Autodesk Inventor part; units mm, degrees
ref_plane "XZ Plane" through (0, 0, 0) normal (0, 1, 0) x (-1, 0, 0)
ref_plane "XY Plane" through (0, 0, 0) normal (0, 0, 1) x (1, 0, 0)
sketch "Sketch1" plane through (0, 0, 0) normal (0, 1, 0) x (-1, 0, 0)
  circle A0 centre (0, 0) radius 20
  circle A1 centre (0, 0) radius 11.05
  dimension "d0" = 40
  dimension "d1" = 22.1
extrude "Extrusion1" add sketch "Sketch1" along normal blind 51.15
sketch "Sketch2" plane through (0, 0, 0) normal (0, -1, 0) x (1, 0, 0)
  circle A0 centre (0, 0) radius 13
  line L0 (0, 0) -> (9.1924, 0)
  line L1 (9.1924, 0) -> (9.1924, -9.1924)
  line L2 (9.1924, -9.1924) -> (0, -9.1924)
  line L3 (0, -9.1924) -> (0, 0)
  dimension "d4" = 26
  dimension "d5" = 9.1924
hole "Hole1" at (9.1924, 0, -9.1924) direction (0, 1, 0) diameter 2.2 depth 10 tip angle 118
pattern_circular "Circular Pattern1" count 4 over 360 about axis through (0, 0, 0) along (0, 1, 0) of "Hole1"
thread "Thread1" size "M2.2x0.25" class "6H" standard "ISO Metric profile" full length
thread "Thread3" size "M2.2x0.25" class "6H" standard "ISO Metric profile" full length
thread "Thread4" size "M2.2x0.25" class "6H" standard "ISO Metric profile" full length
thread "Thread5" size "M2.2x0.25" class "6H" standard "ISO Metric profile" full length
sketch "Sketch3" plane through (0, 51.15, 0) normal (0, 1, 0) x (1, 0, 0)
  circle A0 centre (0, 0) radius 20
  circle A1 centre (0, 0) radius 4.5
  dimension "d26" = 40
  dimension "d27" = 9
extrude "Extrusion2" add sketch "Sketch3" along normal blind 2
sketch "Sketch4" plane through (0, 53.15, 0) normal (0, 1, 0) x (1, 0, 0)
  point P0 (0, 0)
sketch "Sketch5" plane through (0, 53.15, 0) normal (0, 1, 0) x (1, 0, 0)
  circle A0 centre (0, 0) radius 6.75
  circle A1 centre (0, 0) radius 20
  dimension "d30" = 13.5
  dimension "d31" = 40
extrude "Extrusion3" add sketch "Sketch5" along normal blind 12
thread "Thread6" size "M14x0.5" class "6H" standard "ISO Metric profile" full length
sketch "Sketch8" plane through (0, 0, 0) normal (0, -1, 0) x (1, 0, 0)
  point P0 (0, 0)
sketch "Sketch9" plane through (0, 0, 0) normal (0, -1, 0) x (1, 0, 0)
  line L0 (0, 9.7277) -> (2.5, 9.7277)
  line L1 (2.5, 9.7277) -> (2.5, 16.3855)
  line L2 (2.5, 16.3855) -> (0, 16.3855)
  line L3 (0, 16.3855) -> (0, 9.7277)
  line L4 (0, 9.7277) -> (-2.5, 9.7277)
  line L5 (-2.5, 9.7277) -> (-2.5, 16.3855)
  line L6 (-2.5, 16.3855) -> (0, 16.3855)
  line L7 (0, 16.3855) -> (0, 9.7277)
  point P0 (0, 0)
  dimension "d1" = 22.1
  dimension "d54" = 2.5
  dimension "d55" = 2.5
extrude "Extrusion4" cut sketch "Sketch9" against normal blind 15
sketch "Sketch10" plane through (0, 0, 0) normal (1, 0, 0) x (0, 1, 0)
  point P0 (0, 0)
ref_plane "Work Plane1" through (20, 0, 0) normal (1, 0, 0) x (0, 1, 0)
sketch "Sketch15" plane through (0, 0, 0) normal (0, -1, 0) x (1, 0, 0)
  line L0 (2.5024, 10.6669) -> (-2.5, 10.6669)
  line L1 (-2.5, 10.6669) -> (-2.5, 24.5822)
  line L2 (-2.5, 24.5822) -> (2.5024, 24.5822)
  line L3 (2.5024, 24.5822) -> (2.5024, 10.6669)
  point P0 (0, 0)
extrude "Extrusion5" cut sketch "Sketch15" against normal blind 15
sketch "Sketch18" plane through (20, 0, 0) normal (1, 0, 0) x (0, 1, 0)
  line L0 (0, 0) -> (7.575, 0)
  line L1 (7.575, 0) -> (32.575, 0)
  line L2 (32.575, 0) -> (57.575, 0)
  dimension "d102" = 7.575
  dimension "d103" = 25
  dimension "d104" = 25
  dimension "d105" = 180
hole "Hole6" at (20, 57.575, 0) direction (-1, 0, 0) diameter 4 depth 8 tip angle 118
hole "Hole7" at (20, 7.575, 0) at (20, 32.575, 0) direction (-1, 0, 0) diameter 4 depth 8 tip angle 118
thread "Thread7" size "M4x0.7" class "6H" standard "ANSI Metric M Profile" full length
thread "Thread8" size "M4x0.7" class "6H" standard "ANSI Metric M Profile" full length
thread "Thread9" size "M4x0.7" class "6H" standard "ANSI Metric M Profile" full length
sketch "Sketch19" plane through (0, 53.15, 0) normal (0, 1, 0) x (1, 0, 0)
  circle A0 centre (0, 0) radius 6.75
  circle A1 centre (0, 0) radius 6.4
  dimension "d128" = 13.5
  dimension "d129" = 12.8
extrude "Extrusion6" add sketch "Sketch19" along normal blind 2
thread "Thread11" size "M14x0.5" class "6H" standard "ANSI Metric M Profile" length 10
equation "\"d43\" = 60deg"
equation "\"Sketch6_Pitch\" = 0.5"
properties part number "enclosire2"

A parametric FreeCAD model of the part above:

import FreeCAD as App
import Part
import Sketcher
Q = App.Units.Quantity


def add_polygon(sketch, points):
    """Adds a closed chain of lines whose ends are joined by coincident constraints."""
    first, n = sketch.GeometryCount, len(points)
    for a, b in zip(points, points[1:] + points[:1]):
        sketch.addGeometry(Part.LineSegment(App.Vector(*a, 0), App.Vector(*b, 0)), False)
    for i in range(n):
        sketch.addConstraint(Sketcher.Constraint("Coincident", first + i, 2, first + (i + 1) % n, 1))

doc = App.newDocument("Part")
body = doc.addObject("PartDesign::Body", "Body")

# Sketch on XZ plane
sketch1 = body.newObject("Sketcher::SketchObject", "Sketch")
sketch1.AttachmentSupport = (doc.getObject("XZ_Plane"), [""])
sketch1.MapMode = "FlatFace"
sketch1.addGeometry([
    Part.Circle(App.Vector(0, 0, 0), App.Vector(0, 0, 1), 20),
    Part.Circle(App.Vector(0, 0, 0), App.Vector(0, 0, 1), 11.05),
], False)
sketch1.addConstraint([
    Sketcher.Constraint("Coincident", 0, 3, -1, 1),
    Sketcher.Constraint("Coincident", 1, 3, -1, 1),
    Sketcher.Constraint("Diameter", 0, Q("40 mm")),
    Sketcher.Constraint("Diameter", 1, Q("22.1 mm")),
])
pad1 = body.newObject("PartDesign::Pad", "Pad")
pad1.Profile = sketch1
pad1.Length = 51.15
pad1.Reversed = True

# Sketch on XZ plane
sketch2 = body.newObject("Sketcher::SketchObject", "Sketch001")
sketch2.AttachmentSupport = (doc.getObject("XZ_Plane"), [""])
sketch2.MapMode = "FlatFace"
sketch2.addGeometry(Part.Circle(App.Vector(9.1924, -9.1924, 0), App.Vector(0, 0, 1), 1.1), False)
sketch2.addConstraint([
    Sketcher.Constraint("Diameter", 0, Q("2.2 mm")),
    Sketcher.Constraint("DistanceX", -1, 1, 0, 3, Q("9.1924 mm")),
    Sketcher.Constraint("DistanceY", 0, 3, -1, 1, Q("9.1924 mm")),
])
doc.recompute()
hole = body.newObject("PartDesign::Hole", "Hole")
hole.Profile = sketch2
hole.ThreadType = "None"
hole.Diameter = 2.2
hole.DepthType = "Dimension"
hole.Depth = 10
hole.DrillPoint = "Angled"
hole.DrillPointAngle = 118
doc.recompute()

polarpattern = body.newObject("PartDesign::PolarPattern", "PolarPattern")
polarpattern.Originals = [hole]
polarpattern.Axis = (doc.getObject("Y_Axis"), [""])
polarpattern.Angle = 360
polarpattern.Occurrences = 4
body.Tip = polarpattern

# Sketch on XZ plane
sketch3 = body.newObject("Sketcher::SketchObject", "Sketch002")
sketch3.AttachmentSupport = (doc.getObject("XZ_Plane"), [""])
sketch3.MapMode = "FlatFace"
sketch3.AttachmentOffset = App.Placement(App.Vector(0, 0, -51.15), App.Rotation())
sketch3.addGeometry([
    Part.Circle(App.Vector(0, 0, 0), App.Vector(0, 0, 1), 20),
    Part.Circle(App.Vector(0, 0, 0), App.Vector(0, 0, 1), 4.5),
], False)
sketch3.addConstraint([
    Sketcher.Constraint("Coincident", 0, 3, -1, 1),
    Sketcher.Constraint("Coincident", 1, 3, -1, 1),
    Sketcher.Constraint("Diameter", 0, Q("40 mm")),
    Sketcher.Constraint("Diameter", 1, Q("9 mm")),
])
pad2 = body.newObject("PartDesign::Pad", "Pad001")
pad2.Profile = sketch3
pad2.Length = 2
pad2.Reversed = True

# Sketch on XZ plane
sketch4 = body.newObject("Sketcher::SketchObject", "Sketch003")
sketch4.AttachmentSupport = (doc.getObject("XZ_Plane"), [""])
sketch4.MapMode = "FlatFace"
sketch4.AttachmentOffset = App.Placement(App.Vector(0, 0, -53.15), App.Rotation())
sketch4.addGeometry([
    Part.Circle(App.Vector(0, 0, 0), App.Vector(0, 0, 1), 20),
    Part.Circle(App.Vector(0, 0, 0), App.Vector(0, 0, 1), 6.75),
], False)
sketch4.addConstraint([
    Sketcher.Constraint("Coincident", 0, 3, -1, 1),
    Sketcher.Constraint("Coincident", 1, 3, -1, 1),
    Sketcher.Constraint("Diameter", 0, Q("40 mm")),
    Sketcher.Constraint("Diameter", 1, Q("13.5 mm")),
])
pad3 = body.newObject("PartDesign::Pad", "Pad002")
pad3.Profile = sketch4
pad3.Length = 12
pad3.Reversed = True

# Sketch on XZ plane
sketch5 = body.newObject("Sketcher::SketchObject", "Sketch004")
sketch5.AttachmentSupport = (doc.getObject("XZ_Plane"), [""])
sketch5.MapMode = "FlatFace"
add_polygon(sketch5, [(2.5, 16.3855), (-2.5, 16.3855), (-2.5, 9.7277), (2.5, 9.7277)])  # lines 0-3
sketch5.addConstraint([
    Sketcher.Constraint("Horizontal", 0),
    Sketcher.Constraint("Vertical", 1),
    Sketcher.Constraint("Horizontal", 2),
    Sketcher.Constraint("Vertical", 3),
    Sketcher.Constraint("DistanceX", 0, 2, -1, 1, Q("2.5 mm")),
    Sketcher.Constraint("DistanceX", -1, 1, 2, 2, Q("2.5 mm")),
    Sketcher.Constraint("DistanceY", 1, 2, 1, 1, Q("6.6578 mm")),
    Sketcher.Constraint("DistanceY", -1, 1, 0, 2, Q("16.3855 mm")),
])
pocket1 = body.newObject("PartDesign::Pocket", "Pocket")
pocket1.Profile = sketch5
pocket1.Length = 15

# Sketch on XZ plane
sketch6 = body.newObject("Sketcher::SketchObject", "Sketch005")
sketch6.AttachmentSupport = (doc.getObject("XZ_Plane"), [""])
sketch6.MapMode = "FlatFace"
add_polygon(sketch6, [(-2.5, 10.6669), (2.5024, 10.6669), (2.5024, 24.5822), (-2.5, 24.5822)])  # lines 0-3
sketch6.addConstraint([
    Sketcher.Constraint("Horizontal", 0),
    Sketcher.Constraint("Vertical", 1),
    Sketcher.Constraint("Horizontal", 2),
    Sketcher.Constraint("Vertical", 3),
    Sketcher.Constraint("DistanceX", 2, 2, -1, 1, Q("2.5 mm")),
    Sketcher.Constraint("DistanceX", 0, 1, 0, 2, Q("5.0024 mm")),
    Sketcher.Constraint("DistanceY", 1, 1, 1, 2, Q("13.9153 mm")),
    Sketcher.Constraint("DistanceY", -1, 1, 0, 2, Q("10.667 mm")),
])
pocket2 = body.newObject("PartDesign::Pocket", "Pocket001")
pocket2.Profile = sketch6
pocket2.Length = 15

# Sketch on YZ plane
sketch7 = body.newObject("Sketcher::SketchObject", "Sketch006")
sketch7.AttachmentSupport = (doc.getObject("YZ_Plane"), [""])
sketch7.MapMode = "FlatFace"
sketch7.AttachmentOffset = App.Placement(App.Vector(0, 0, 20), App.Rotation())
sketch7.addGeometry(Part.Circle(App.Vector(57.575, 0, 0), App.Vector(0, 0, 1), 2), False)
sketch7.addConstraint([
    Sketcher.Constraint("PointOnObject", 0, 3, -1),
    Sketcher.Constraint("Diameter", 0, Q("4 mm")),
    Sketcher.Constraint("DistanceX", -1, 1, 0, 3, Q("57.575 mm")),
])
doc.recompute()
hole2 = body.newObject("PartDesign::Hole", "Hole001")
hole2.Profile = sketch7
hole2.ThreadType = "None"
hole2.Diameter = 4
hole2.DepthType = "Dimension"
hole2.Depth = 8
hole2.DrillPoint = "Angled"
hole2.DrillPointAngle = 118

# Sketch on YZ plane
sketch8 = body.newObject("Sketcher::SketchObject", "Sketch007")
sketch8.AttachmentSupport = (doc.getObject("YZ_Plane"), [""])
sketch8.MapMode = "FlatFace"
sketch8.AttachmentOffset = App.Placement(App.Vector(0, 0, 20), App.Rotation())
sketch8.addGeometry([
    Part.Circle(App.Vector(7.575, 0, 0), App.Vector(0, 0, 1), 2),
    Part.Circle(App.Vector(32.575, 0, 0), App.Vector(0, 0, 1), 2),
], False)
sketch8.addConstraint([
    Sketcher.Constraint("Equal", 0, 1),
    Sketcher.Constraint("PointOnObject", 0, 3, -1),
    Sketcher.Constraint("PointOnObject", 1, 3, -1),
    Sketcher.Constraint("Diameter", 0, Q("4 mm")),
    Sketcher.Constraint("DistanceX", 0, 3, 1, 3, Q("25 mm")),
    Sketcher.Constraint("DistanceX", -1, 1, 0, 3, Q("7.575 mm")),
])
doc.recompute()
hole3 = body.newObject("PartDesign::Hole", "Hole002")
hole3.Profile = sketch8
hole3.ThreadType = "None"
hole3.Diameter = 4
hole3.DepthType = "Dimension"
hole3.Depth = 8
hole3.DrillPoint = "Angled"
hole3.DrillPointAngle = 118

# Sketch on XZ plane
sketch9 = body.newObject("Sketcher::SketchObject", "Sketch008")
sketch9.AttachmentSupport = (doc.getObject("XZ_Plane"), [""])
sketch9.MapMode = "FlatFace"
sketch9.AttachmentOffset = App.Placement(App.Vector(0, 0, -53.15), App.Rotation())
sketch9.addGeometry([
    Part.Circle(App.Vector(0, 0, 0), App.Vector(0, 0, 1), 6.75),
    Part.Circle(App.Vector(0, 0, 0), App.Vector(0, 0, 1), 6.4),
], False)
sketch9.addConstraint([
    Sketcher.Constraint("Coincident", 0, 3, -1, 1),
    Sketcher.Constraint("Coincident", 1, 3, -1, 1),
    Sketcher.Constraint("Diameter", 0, Q("13.5 mm")),
    Sketcher.Constraint("Diameter", 1, Q("12.8 mm")),
])
pad4 = body.newObject("PartDesign::Pad", "Pad003")
pad4.Profile = sketch9
pad4.Length = 2
pad4.Reversed = True

doc.recompute()
